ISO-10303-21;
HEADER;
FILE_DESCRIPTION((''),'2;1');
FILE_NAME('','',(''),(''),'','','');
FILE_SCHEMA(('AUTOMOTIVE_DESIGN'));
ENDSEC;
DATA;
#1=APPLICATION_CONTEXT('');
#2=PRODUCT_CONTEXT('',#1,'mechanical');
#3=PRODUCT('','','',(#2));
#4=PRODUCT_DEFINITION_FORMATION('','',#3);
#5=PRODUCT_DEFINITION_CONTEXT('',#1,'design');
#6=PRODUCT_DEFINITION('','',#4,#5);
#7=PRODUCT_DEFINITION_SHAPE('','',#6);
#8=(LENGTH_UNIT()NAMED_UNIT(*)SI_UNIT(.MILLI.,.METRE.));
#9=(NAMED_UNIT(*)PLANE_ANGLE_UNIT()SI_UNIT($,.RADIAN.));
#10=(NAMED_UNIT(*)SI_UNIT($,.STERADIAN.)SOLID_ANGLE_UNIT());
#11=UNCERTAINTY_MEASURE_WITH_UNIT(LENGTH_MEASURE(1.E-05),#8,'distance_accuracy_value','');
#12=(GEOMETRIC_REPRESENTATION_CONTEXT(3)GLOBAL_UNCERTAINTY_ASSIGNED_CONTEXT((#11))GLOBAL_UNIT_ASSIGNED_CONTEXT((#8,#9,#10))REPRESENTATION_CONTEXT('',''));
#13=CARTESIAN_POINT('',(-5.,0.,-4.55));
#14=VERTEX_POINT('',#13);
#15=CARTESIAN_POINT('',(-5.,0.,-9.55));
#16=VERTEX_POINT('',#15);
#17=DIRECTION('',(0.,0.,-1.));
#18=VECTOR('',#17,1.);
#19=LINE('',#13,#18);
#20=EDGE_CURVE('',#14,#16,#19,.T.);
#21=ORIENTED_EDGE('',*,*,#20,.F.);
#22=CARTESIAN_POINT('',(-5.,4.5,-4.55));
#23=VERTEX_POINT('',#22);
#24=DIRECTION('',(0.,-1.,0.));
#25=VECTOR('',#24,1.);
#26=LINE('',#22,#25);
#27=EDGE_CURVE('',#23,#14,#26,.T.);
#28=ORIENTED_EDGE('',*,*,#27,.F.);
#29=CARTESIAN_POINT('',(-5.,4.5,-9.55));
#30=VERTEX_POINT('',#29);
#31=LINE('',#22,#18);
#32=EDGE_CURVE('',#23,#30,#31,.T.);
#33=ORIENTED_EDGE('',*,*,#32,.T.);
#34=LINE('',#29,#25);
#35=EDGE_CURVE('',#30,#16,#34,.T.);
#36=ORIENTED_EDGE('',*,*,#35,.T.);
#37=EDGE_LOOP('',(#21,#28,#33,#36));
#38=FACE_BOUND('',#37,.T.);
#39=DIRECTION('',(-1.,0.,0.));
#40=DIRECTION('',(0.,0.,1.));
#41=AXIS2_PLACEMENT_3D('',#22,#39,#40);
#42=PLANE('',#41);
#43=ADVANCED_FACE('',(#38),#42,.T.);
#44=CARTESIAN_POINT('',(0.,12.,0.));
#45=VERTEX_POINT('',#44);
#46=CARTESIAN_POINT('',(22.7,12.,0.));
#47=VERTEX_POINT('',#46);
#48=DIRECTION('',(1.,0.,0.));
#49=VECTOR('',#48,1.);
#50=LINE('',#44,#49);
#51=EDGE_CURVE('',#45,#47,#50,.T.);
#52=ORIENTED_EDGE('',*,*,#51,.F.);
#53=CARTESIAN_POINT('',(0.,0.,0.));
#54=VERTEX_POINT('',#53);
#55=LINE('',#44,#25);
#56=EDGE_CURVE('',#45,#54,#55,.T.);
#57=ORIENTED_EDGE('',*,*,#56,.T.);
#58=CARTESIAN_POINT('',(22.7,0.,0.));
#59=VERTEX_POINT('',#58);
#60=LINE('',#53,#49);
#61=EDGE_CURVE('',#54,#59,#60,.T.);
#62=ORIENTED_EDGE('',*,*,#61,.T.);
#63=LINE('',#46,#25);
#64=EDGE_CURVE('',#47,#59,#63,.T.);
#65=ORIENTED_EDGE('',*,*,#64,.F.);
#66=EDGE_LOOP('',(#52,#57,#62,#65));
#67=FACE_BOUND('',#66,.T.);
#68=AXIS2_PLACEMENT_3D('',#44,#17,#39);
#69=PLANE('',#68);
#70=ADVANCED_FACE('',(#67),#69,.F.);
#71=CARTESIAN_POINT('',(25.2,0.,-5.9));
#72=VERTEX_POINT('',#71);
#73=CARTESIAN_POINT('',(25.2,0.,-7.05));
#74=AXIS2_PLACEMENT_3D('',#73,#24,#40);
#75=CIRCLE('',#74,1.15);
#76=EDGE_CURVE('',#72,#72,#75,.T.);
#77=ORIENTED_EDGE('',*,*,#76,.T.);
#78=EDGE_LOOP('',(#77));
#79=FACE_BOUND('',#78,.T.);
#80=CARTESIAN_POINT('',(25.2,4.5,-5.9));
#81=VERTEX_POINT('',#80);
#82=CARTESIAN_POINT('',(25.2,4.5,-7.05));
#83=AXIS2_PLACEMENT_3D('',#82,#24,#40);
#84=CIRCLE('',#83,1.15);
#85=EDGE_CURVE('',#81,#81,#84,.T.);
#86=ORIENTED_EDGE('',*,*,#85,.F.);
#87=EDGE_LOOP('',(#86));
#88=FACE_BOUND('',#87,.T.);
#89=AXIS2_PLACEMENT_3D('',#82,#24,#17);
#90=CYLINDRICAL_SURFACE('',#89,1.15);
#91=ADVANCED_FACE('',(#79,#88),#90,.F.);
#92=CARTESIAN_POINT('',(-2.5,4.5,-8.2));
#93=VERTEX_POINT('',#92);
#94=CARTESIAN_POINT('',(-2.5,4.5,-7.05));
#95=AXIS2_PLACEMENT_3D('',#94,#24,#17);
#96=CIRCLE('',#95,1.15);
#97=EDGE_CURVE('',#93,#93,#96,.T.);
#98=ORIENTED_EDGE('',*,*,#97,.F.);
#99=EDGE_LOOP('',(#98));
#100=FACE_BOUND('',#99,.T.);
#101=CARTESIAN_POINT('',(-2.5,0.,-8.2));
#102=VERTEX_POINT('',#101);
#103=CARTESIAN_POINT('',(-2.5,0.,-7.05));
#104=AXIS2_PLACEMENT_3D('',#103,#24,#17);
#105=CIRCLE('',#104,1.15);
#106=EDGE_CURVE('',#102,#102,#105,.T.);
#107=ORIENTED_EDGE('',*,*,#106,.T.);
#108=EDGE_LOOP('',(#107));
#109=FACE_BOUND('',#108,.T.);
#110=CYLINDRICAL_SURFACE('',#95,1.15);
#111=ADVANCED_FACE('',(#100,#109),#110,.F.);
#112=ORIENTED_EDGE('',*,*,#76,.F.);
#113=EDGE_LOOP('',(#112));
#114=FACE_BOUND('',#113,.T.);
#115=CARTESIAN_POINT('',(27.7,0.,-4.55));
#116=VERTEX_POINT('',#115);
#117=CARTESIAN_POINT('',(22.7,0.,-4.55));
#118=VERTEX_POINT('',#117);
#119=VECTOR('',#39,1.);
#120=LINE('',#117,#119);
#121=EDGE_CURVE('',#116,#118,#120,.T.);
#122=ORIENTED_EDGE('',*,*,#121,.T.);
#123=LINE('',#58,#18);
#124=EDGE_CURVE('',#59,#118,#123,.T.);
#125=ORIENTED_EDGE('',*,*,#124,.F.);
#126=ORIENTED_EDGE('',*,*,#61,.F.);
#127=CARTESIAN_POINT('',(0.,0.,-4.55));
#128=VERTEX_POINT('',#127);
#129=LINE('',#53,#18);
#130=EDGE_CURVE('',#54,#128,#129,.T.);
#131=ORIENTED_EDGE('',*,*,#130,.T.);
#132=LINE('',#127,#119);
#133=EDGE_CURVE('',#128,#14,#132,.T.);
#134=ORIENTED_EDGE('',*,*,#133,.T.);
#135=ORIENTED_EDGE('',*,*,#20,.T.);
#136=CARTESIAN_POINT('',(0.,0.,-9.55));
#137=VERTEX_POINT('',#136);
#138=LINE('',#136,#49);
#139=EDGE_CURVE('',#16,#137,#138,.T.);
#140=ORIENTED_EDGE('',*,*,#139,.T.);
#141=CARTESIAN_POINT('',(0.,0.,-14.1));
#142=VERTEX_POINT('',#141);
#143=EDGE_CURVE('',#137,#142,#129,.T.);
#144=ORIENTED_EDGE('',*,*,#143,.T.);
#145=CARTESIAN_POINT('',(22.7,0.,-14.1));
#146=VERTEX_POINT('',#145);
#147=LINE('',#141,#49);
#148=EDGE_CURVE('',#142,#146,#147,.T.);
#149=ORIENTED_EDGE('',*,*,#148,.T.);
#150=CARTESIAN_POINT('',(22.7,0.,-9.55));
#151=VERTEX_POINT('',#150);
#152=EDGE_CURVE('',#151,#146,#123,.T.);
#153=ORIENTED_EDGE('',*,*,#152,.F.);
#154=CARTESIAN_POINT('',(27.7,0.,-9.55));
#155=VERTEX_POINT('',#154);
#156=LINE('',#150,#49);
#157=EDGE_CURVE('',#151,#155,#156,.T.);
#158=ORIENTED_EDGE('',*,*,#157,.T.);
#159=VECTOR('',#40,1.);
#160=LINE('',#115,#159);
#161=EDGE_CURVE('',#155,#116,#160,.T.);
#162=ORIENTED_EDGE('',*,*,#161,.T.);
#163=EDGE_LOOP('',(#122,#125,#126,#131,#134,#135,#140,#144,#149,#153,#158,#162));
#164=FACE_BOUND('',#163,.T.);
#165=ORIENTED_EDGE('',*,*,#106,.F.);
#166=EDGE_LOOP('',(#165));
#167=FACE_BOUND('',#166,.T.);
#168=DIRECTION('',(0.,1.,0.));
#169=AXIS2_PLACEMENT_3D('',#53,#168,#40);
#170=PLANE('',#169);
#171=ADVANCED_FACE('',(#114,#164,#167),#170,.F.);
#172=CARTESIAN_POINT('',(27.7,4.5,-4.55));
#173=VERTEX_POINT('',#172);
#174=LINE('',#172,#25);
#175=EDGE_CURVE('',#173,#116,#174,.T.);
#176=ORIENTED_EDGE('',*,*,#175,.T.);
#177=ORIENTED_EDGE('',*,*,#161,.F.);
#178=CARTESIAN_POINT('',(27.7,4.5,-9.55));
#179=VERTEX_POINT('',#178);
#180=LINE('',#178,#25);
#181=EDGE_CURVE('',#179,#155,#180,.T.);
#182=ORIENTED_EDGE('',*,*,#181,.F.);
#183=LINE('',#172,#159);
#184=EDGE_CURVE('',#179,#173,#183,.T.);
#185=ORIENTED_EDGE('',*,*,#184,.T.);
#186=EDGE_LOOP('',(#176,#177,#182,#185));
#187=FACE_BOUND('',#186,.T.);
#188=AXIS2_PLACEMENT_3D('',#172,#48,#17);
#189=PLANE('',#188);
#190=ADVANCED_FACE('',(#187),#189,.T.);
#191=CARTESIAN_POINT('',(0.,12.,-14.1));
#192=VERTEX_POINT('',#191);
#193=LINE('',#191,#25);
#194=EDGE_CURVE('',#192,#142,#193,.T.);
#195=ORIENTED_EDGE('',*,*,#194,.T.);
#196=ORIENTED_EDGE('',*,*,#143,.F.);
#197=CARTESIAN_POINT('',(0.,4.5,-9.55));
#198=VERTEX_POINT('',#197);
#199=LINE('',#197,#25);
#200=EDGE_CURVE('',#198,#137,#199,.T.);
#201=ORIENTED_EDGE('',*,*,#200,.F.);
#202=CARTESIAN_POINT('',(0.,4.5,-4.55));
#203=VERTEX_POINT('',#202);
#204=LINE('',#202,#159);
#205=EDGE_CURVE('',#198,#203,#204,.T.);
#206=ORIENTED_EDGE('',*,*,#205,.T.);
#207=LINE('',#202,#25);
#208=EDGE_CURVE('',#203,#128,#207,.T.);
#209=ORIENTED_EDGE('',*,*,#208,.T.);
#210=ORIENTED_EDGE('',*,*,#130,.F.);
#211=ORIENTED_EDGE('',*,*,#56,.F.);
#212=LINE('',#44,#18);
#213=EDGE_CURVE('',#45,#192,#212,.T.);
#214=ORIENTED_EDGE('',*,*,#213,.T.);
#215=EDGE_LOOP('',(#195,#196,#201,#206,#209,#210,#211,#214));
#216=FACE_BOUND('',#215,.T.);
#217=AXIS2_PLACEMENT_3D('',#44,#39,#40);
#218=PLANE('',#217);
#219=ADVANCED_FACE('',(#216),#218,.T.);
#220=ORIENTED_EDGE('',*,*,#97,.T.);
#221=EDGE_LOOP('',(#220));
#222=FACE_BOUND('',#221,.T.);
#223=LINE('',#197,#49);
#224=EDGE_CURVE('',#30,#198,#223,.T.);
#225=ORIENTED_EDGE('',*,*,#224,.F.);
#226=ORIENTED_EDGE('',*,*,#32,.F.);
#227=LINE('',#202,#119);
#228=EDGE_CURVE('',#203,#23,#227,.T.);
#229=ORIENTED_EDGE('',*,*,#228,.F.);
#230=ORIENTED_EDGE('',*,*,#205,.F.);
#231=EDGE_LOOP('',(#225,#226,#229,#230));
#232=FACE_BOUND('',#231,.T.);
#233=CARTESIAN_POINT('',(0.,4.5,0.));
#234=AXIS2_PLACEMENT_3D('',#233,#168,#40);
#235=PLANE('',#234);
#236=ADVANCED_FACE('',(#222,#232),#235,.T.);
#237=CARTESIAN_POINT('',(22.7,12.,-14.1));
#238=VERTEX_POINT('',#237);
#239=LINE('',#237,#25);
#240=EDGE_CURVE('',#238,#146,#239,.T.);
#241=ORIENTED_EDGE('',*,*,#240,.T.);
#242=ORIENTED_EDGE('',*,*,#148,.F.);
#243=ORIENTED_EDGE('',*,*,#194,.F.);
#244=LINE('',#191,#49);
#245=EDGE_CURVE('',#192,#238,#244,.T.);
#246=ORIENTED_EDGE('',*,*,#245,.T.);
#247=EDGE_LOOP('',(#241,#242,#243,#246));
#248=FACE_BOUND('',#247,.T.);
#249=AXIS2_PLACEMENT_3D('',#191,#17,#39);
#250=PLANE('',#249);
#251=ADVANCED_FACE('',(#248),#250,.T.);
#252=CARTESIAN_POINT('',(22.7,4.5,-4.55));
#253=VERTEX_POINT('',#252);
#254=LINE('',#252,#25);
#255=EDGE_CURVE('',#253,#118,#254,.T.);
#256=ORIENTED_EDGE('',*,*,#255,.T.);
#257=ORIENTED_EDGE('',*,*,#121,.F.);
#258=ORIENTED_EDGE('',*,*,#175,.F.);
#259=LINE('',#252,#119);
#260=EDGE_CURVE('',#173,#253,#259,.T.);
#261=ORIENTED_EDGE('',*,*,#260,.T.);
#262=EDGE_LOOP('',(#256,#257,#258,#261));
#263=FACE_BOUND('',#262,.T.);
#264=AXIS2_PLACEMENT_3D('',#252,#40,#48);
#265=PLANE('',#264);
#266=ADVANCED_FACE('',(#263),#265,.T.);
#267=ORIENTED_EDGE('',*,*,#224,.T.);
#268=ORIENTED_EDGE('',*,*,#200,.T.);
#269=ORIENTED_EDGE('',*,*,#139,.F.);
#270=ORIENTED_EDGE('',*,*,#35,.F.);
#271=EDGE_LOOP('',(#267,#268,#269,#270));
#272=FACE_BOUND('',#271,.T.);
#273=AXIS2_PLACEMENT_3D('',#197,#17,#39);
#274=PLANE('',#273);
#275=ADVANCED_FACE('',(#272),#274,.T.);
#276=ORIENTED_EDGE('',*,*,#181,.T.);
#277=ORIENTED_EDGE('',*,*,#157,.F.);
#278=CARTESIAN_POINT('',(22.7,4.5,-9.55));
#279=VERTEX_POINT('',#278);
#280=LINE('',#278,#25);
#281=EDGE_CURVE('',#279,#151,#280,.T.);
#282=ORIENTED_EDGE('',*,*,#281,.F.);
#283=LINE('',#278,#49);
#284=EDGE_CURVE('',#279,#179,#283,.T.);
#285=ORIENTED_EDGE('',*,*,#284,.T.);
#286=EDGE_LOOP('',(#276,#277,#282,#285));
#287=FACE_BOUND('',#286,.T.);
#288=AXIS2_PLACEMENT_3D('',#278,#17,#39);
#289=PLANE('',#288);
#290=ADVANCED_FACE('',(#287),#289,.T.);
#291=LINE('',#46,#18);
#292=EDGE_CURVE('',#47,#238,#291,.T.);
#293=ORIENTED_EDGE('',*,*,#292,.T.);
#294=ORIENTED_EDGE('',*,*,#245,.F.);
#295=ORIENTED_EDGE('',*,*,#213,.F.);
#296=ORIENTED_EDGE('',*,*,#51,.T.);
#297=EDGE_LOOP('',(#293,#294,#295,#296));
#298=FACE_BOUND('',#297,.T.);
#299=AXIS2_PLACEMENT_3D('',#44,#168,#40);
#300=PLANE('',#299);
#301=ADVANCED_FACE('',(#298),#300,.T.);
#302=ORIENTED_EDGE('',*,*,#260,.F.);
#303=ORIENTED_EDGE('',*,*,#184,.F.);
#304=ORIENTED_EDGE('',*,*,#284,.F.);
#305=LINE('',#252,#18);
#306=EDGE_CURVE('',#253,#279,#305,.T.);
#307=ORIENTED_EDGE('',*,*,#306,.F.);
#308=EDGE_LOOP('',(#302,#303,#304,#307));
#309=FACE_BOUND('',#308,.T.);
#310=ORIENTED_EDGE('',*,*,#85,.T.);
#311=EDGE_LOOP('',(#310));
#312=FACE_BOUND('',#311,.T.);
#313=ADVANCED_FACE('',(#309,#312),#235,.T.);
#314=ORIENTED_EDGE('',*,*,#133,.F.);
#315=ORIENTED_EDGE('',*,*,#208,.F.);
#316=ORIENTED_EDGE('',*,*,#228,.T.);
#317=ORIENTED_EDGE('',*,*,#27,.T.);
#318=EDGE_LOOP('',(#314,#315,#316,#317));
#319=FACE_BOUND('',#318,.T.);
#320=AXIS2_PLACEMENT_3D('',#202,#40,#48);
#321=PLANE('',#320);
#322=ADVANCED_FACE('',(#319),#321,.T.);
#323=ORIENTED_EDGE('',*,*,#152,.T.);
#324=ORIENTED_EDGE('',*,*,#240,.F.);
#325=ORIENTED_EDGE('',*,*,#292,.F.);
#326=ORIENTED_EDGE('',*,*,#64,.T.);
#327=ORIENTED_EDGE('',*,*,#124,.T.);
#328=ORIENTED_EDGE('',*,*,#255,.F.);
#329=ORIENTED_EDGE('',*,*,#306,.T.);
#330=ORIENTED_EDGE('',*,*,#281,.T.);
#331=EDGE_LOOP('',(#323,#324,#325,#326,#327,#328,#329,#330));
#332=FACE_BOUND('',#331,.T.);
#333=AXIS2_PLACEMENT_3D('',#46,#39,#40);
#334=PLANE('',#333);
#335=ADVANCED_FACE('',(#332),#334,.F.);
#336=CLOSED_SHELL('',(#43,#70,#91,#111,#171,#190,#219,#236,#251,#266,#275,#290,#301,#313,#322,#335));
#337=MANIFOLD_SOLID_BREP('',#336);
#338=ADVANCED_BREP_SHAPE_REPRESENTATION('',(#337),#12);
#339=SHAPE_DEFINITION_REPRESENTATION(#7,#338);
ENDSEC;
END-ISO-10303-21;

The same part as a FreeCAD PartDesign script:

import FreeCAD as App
import Part
import Sketcher


def add_polygon(sketch, points):
    """Adds a closed chain of lines whose ends are joined by coincident constraints."""
    first, n = sketch.GeometryCount, len(points)
    for a, b in zip(points, points[1:] + points[:1]):
        sketch.addGeometry(Part.LineSegment(App.Vector(*a, 0), App.Vector(*b, 0)), False)
    for i in range(n):
        sketch.addConstraint(Sketcher.Constraint("Coincident", first + i, 2, first + (i + 1) % n, 1))

doc = App.newDocument("Part")
body = doc.addObject("PartDesign::Body", "Body")

# Sketch on XZ plane
sketch1 = body.newObject("Sketcher::SketchObject", "Sketch")
sketch1.AttachmentSupport = (doc.getObject("XZ_Plane"), [""])
sketch1.MapMode = "FlatFace"
add_polygon(sketch1, [(0, -14), (0, 0), (23, 0), (23, -14)])  # lines 0-3
sketch1.addConstraint(Sketcher.Constraint("Vertical", 0))
sketch1.addConstraint(Sketcher.Constraint("Horizontal", 1))
sketch1.addConstraint(Sketcher.Constraint("Vertical", 2))
sketch1.addConstraint(Sketcher.Constraint("Horizontal", 3))
sketch1.addConstraint(Sketcher.Constraint("Coincident", 0, 2, -1, 1))
sketch1.addConstraint(Sketcher.Constraint("DistanceX", 1, 1, 1, 2, 22.7))
sketch1.addConstraint(Sketcher.Constraint("DistanceY", 0, 1, 0, 2, 14.1))
pad1 = body.newObject("PartDesign::Pad", "Pad")
pad1.Profile = sketch1
pad1.Length = 12
pad1.Reversed = True

# Sketch on XZ plane
sketch2 = body.newObject("Sketcher::SketchObject", "Sketch001")
sketch2.AttachmentSupport = (doc.getObject("XZ_Plane"), [""])
sketch2.MapMode = "FlatFace"
add_polygon(sketch2, [(-5, -4.5), (-5, -9.6), (0, -9.6), (0, -4.5)])  # lines 0-3
sketch2.addGeometry(Part.Circle(App.Vector(-2.5, -7, 0), App.Vector(0, 0, 1), 1.1), False)  # 4
add_polygon(sketch2, [(22.7, -4.5), (22.7, -9.6), (27.7, -9.6), (27.7, -4.5)])  # lines 5-8
sketch2.addGeometry(Part.Circle(App.Vector(25.2, -7, 0), App.Vector(0, 0, 1), 1.1), False)  # 9
sketch2.addConstraint(Sketcher.Constraint("Vertical", 0))
sketch2.addConstraint(Sketcher.Constraint("Horizontal", 1))
sketch2.addConstraint(Sketcher.Constraint("Vertical", 2))
sketch2.addConstraint(Sketcher.Constraint("Horizontal", 3))
sketch2.addConstraint(Sketcher.Constraint("Vertical", 5))
sketch2.addConstraint(Sketcher.Constraint("Horizontal", 6))
sketch2.addConstraint(Sketcher.Constraint("Vertical", 7))
sketch2.addConstraint(Sketcher.Constraint("Horizontal", 8))
sketch2.addConstraint(Sketcher.Constraint("Equal", 4, 9))
sketch2.addConstraint(Sketcher.Constraint("PointOnObject", 1, 2, -2))
sketch2.addConstraint(Sketcher.Constraint("Horizontal", 4, 3, 9, 3))
sketch2.addConstraint(Sketcher.Constraint("Horizontal", 1, 2, 5, 2))
sketch2.addConstraint(Sketcher.Constraint("Horizontal", 3, 2, 7, 2))
sketch2.addConstraint(Sketcher.Constraint("Equal", 3, 6))
sketch2.addConstraint(Sketcher.Constraint("Equal", 8, 0))
sketch2.addConstraint(Sketcher.Constraint("Diameter", 4, 2.3))
sketch2.addConstraint(Sketcher.Constraint("DistanceX", 1, 1, 1, 2, 5.0))
sketch2.addConstraint(Sketcher.Constraint("DistanceX", 4, 3, -1, 1, 2.5))
sketch2.addConstraint(Sketcher.Constraint("DistanceX", -1, 1, 9, 3, 25.2))
sketch2.addConstraint(Sketcher.Constraint("DistanceX", -1, 1, 5, 2, 22.7))
sketch2.addConstraint(Sketcher.Constraint("DistanceY", 0, 2, 4, 3, 2.5))
sketch2.addConstraint(Sketcher.Constraint("DistanceY", 4, 3, -1, 1, 7.05))
pad2 = body.newObject("PartDesign::Pad", "Pad001")
pad2.Profile = sketch2
pad2.Length = 4.5
pad2.Reversed = True

doc.recompute()
